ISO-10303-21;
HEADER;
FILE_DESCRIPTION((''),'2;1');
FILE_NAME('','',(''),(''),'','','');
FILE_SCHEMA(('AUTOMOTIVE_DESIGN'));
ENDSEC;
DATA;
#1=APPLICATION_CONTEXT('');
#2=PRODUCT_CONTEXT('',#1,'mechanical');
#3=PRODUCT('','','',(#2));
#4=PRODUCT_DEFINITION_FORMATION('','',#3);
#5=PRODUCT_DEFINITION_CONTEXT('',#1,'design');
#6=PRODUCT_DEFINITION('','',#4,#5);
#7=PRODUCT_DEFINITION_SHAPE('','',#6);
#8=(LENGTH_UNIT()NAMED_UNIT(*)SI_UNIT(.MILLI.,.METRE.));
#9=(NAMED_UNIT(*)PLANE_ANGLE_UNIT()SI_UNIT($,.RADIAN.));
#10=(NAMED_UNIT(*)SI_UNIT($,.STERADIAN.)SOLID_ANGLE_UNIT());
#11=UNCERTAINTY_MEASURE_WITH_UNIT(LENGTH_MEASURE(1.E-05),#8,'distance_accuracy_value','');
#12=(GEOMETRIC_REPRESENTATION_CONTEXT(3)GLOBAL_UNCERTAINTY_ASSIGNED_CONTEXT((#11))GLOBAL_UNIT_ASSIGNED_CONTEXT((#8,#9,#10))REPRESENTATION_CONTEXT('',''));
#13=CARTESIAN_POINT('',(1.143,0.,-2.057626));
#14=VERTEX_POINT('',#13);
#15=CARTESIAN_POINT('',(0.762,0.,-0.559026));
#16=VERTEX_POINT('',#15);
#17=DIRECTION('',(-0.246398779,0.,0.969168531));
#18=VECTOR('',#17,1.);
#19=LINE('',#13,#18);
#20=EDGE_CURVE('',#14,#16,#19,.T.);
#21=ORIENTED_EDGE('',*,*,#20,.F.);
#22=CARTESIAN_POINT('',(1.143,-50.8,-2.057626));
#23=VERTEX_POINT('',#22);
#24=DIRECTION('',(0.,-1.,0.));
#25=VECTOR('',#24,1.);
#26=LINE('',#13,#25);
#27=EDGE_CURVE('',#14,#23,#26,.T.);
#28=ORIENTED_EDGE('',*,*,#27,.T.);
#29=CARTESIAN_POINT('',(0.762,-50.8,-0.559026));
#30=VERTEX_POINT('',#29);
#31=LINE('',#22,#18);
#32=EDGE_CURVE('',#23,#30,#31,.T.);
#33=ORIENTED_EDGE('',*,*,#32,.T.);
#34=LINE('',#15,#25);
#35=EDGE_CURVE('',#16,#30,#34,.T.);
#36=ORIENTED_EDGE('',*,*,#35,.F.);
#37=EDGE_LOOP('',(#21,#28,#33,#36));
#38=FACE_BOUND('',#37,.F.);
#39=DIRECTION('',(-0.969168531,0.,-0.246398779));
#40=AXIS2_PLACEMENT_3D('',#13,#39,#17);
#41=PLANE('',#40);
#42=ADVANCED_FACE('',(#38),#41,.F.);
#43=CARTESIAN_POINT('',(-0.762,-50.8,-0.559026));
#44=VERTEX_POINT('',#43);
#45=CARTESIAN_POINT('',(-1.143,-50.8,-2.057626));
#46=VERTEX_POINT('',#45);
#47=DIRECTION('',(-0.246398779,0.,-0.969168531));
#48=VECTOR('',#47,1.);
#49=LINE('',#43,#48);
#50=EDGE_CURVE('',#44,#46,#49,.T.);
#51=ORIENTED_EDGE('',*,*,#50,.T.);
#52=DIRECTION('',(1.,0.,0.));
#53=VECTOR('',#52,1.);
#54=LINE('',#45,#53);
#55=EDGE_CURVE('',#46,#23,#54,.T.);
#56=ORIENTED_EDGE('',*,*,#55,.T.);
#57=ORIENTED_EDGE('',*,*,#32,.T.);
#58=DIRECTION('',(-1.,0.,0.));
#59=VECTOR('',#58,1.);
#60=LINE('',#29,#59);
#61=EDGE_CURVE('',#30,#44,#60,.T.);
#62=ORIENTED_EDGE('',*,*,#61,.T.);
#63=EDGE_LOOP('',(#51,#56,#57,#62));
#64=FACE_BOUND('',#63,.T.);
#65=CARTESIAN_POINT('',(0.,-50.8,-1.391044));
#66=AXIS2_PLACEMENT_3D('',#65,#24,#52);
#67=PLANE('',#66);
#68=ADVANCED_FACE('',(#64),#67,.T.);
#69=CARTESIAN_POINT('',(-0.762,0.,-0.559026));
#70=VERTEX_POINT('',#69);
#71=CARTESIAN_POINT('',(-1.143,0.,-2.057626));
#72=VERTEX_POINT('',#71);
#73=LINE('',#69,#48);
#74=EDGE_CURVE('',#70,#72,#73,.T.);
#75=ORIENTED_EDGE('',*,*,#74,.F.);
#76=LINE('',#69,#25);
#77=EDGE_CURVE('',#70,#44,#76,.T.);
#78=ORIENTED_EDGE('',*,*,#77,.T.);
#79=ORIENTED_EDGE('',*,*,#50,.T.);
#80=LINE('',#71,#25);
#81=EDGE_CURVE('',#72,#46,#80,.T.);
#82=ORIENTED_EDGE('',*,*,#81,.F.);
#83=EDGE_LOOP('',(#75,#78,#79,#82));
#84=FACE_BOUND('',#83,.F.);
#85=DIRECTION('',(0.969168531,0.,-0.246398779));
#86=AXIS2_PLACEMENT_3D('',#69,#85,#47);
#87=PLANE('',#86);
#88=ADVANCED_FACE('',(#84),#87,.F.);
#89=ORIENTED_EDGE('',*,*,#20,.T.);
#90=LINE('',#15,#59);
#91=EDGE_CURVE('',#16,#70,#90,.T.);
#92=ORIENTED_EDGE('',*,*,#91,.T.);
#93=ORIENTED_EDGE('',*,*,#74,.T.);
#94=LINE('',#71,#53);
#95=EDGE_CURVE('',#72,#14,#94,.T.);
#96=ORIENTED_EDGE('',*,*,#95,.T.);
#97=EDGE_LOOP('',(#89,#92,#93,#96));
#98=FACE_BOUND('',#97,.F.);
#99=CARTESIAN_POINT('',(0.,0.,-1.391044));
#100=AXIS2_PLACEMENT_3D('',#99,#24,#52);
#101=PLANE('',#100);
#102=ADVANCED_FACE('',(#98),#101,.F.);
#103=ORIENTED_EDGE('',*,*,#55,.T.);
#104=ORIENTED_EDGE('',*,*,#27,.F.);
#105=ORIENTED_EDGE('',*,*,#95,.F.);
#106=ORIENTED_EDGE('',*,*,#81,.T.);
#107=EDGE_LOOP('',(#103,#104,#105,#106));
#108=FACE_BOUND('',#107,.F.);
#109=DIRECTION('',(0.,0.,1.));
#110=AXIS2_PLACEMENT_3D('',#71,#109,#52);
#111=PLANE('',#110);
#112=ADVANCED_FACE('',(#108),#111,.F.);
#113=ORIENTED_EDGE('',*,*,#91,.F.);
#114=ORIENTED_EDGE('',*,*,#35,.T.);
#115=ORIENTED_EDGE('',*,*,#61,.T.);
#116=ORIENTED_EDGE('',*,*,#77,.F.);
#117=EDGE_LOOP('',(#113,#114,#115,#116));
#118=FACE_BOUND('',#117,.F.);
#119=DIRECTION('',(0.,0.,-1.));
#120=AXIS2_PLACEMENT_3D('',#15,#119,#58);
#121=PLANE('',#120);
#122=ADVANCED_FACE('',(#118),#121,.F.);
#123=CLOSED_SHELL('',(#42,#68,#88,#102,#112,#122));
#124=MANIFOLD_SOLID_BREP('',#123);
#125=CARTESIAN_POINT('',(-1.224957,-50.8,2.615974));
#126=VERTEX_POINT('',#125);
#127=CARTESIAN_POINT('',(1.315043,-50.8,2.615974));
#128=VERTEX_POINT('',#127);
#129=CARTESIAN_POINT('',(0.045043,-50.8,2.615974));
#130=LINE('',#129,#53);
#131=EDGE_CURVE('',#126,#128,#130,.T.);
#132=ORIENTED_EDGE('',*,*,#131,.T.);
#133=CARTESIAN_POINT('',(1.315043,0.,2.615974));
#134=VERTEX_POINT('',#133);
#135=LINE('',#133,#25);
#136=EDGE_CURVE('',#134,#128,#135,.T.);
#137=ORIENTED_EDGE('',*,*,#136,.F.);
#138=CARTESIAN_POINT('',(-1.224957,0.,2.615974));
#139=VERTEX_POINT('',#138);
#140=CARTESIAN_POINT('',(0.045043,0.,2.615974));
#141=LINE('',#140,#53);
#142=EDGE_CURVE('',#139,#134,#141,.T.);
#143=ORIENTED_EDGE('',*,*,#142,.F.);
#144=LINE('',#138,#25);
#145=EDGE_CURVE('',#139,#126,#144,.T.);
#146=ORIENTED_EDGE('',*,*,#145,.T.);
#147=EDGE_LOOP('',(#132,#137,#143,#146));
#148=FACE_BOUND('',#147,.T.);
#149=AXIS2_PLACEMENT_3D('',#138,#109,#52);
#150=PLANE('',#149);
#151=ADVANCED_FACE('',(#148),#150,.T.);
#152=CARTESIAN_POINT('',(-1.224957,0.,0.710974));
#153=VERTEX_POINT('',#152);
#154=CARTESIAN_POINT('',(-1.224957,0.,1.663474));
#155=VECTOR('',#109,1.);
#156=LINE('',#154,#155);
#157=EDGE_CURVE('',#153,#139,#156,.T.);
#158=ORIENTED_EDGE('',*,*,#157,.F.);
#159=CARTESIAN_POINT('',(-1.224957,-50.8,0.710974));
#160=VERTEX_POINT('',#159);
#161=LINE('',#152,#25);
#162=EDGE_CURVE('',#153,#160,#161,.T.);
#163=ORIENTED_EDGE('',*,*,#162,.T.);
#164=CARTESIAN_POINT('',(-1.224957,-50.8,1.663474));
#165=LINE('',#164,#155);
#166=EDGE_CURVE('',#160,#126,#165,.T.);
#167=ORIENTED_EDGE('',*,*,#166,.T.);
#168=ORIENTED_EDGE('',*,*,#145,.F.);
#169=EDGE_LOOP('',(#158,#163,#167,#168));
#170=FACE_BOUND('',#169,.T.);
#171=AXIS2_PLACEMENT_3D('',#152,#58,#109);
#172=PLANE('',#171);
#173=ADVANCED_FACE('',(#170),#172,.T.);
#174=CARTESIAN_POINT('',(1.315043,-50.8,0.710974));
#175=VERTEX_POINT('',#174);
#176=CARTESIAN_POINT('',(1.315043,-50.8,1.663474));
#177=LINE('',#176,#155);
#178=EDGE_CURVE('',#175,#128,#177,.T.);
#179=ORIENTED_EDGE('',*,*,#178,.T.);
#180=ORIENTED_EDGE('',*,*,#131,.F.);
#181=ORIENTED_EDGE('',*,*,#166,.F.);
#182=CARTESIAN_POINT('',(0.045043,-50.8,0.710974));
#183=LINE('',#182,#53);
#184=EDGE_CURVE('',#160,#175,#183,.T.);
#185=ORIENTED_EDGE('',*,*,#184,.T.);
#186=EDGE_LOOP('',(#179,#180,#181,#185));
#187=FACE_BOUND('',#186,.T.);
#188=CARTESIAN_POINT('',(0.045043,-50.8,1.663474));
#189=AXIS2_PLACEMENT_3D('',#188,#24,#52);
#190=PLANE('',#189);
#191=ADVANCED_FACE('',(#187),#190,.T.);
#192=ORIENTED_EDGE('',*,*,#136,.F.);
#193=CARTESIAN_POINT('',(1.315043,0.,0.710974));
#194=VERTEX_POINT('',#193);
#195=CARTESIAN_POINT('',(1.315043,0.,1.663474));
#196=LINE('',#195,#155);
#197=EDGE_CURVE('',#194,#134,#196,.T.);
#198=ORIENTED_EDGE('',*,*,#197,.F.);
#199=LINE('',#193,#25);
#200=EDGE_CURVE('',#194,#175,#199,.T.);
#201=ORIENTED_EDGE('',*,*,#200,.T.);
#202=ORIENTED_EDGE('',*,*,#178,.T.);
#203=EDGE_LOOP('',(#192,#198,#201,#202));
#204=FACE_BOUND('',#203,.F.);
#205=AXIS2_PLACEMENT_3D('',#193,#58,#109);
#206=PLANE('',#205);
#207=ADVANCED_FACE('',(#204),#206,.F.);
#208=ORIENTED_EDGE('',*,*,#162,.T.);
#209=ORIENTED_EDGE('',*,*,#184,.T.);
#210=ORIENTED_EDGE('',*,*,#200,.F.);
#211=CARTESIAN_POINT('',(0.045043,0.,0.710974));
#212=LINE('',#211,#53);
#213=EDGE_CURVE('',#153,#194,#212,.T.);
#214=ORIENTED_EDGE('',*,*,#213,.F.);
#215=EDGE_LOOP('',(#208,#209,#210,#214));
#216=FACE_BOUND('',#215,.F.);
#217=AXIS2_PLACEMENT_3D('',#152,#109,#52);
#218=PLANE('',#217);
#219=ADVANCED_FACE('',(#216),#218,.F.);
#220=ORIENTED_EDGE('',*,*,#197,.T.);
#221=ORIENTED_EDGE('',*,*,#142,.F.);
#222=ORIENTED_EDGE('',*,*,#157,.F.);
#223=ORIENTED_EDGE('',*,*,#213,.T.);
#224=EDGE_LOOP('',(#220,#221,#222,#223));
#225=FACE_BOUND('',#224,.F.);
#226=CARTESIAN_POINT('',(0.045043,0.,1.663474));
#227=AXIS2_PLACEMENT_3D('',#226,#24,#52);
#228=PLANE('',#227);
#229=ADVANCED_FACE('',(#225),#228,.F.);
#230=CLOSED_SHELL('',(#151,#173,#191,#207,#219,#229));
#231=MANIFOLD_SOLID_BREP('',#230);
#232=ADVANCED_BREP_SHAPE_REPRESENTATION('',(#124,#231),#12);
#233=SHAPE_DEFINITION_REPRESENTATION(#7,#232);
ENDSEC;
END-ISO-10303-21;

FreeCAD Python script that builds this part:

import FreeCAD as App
import Part
import Sketcher
Q = App.Units.Quantity

doc = App.newDocument("Part")
body = doc.addObject("PartDesign::Body", "Body")

# Sketch on XZ plane
sketch1 = body.newObject("Sketcher::SketchObject", "Sketch")
sketch1.AttachmentSupport = (doc.getObject("XZ_Plane"), [""])
sketch1.MapMode = "FlatFace"
sketch1.addGeometry([
    Part.LineSegment(App.Vector(-1.1, -2.1, 0), App.Vector(1.1, -2.1, 0)),
    Part.LineSegment(App.Vector(1.1, -2.1, 0), App.Vector(0.8, -0.6, 0)),
    Part.LineSegment(App.Vector(0.8, -0.6, 0), App.Vector(-0.8, -0.6, 0)),
    Part.LineSegment(App.Vector(-0.8, -0.6, 0), App.Vector(-1.1, -2.1, 0)),
], False)
sketch1.addConstraint([
    Sketcher.Constraint("Coincident", 0, 2, 1, 1),
    Sketcher.Constraint("Coincident", 1, 2, 2, 1),
    Sketcher.Constraint("Coincident", 2, 2, 3, 1),
    Sketcher.Constraint("Coincident", 3, 2, 0, 1),
    Sketcher.Constraint("Horizontal", 0),
    Sketcher.Constraint("Horizontal", 2),
    Sketcher.Constraint("Equal", 1, 3),
    Sketcher.Constraint("DistanceX", 0, 1, 0, 2, Q("0.09 in")),
    Sketcher.Constraint("DistanceX", 2, 2, 2, 1, Q("0.06 in")),
    Sketcher.Constraint("DistanceX", -1, 1, 1, 2, Q("0.03 in")),
    Sketcher.Constraint("DistanceY", 0, 2, 1, 2, Q("0.059 in")),
    Sketcher.Constraint("DistanceY", 0, 2, -1, 1, 2.057626),
])
pad1 = body.newObject("PartDesign::Pad", "Pad")
pad1.Profile = sketch1
pad1.Length = Q("2 in")
body2 = doc.addObject("PartDesign::Body", "Body001")

# Sketch on XZ plane
sketch2 = body2.newObject("Sketcher::SketchObject", "Sketch001")
sketch2.AttachmentSupport = (doc.getObject("XZ_Plane001"), [""])
sketch2.MapMode = "FlatFace"
sketch2.addGeometry([
    Part.LineSegment(App.Vector(-1.2, 2.6, 0), App.Vector(-1.2, 0.7, 0)),
    Part.LineSegment(App.Vector(-1.2, 0.7, 0), App.Vector(1.3, 0.7, 0)),
    Part.LineSegment(App.Vector(1.3, 0.7, 0), App.Vector(1.3, 2.6, 0)),
    Part.LineSegment(App.Vector(1.3, 2.6, 0), App.Vector(-1.2, 2.6, 0)),
], False)
sketch2.addConstraint([
    Sketcher.Constraint("Coincident", 0, 2, 1, 1),
    Sketcher.Constraint("Coincident", 1, 2, 2, 1),
    Sketcher.Constraint("Coincident", 2, 2, 3, 1),
    Sketcher.Constraint("Coincident", 3, 2, 0, 1),
    Sketcher.Constraint("Vertical", 0),
    Sketcher.Constraint("Horizontal", 1),
    Sketcher.Constraint("Vertical", 2),
    Sketcher.Constraint("Horizontal", 3),
    Sketcher.Constraint("DistanceX", 1, 1, 1, 2, Q("0.1 in")),
    Sketcher.Constraint("DistanceY", 0, 2, 0, 1, Q("0.075 in")),
    Sketcher.Constraint("DistanceX", 0, 2, -1, 1, 1.224957),
    Sketcher.Constraint("DistanceY", -1, 1, 0, 2, 0.710974),
])
pad2 = body2.newObject("PartDesign::Pad", "Pad001")
pad2.Profile = sketch2
pad2.Length = Q("2 in")

doc.recompute()
